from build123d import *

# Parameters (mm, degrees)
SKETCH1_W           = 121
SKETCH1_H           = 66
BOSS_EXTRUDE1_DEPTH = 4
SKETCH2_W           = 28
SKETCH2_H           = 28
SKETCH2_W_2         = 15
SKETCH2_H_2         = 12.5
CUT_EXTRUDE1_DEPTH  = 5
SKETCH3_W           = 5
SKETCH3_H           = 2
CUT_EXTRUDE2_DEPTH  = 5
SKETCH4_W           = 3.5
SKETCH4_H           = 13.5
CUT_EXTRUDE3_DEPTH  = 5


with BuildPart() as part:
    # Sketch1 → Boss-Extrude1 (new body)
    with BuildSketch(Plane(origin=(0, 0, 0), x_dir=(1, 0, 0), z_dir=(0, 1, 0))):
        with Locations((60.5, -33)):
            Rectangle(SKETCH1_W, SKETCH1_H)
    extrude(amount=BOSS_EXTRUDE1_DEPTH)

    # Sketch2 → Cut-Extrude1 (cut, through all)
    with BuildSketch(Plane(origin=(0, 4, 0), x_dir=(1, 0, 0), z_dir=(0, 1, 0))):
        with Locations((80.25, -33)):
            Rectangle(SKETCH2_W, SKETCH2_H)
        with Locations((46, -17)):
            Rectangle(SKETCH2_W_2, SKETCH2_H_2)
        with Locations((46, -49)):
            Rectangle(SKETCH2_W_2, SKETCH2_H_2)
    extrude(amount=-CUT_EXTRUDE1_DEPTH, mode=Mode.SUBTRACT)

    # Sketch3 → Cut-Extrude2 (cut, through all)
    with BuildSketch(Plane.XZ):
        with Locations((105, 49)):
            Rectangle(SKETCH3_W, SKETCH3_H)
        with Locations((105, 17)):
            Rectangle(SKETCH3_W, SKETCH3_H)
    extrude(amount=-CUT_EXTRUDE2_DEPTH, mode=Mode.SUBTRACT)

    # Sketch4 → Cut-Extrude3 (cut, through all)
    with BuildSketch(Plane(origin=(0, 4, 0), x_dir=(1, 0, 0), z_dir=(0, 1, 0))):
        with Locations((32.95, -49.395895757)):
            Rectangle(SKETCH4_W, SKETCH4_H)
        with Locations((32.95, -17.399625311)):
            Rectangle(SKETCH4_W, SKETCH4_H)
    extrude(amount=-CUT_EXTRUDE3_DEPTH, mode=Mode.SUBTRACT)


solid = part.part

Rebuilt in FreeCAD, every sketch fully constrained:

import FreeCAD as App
import Part
import Sketcher
from FreeCAD import Vector
Q = App.Units.Quantity

doc = App.newDocument("Part")
body = doc.addObject("PartDesign::Body", "Body")

# Sketch on XZ plane
sketch1 = doc.addObject("Sketcher::SketchObject", "Sketch")
body.addObject(sketch1)
sketch1.AttachmentSupport = (doc.XZ_Plane, [""])
sketch1.MapMode = "FlatFace"
sketch1.addGeometry(Part.LineSegment(Vector(0, 0, 0), Vector(0, 66, 0)), False)
sketch1.addGeometry(Part.LineSegment(Vector(0, 66, 0), Vector(121, 66, 0)), False)
sketch1.addGeometry(Part.LineSegment(Vector(121, 66, 0), Vector(121, 0, 0)), False)
sketch1.addGeometry(Part.LineSegment(Vector(121, 0, 0), Vector(0, 0, 0)), False)
sketch1.addConstraint(Sketcher.Constraint("Coincident", 0, 2, 1, 1))
sketch1.addConstraint(Sketcher.Constraint("Coincident", 1, 2, 2, 1))
sketch1.addConstraint(Sketcher.Constraint("Coincident", 2, 2, 3, 1))
sketch1.addConstraint(Sketcher.Constraint("Coincident", 3, 2, 0, 1))
sketch1.addConstraint(Sketcher.Constraint("Vertical", 0))
sketch1.addConstraint(Sketcher.Constraint("Horizontal", 1))
sketch1.addConstraint(Sketcher.Constraint("Vertical", 2))
sketch1.addConstraint(Sketcher.Constraint("Horizontal", 3))
sketch1.addConstraint(Sketcher.Constraint("Coincident", 3, 2, -1, 1))
sketch1.addConstraint(Sketcher.Constraint("DistanceX", 1, 1, 1, 2, Q("121 mm")))
sketch1.addConstraint(Sketcher.Constraint("DistanceY", 0, 1, 0, 2, Q("66 mm")))
pad1 = doc.addObject("PartDesign::Pad", "Pad")
body.addObject(pad1)
pad1.Profile = sketch1
pad1.Length = 4
pad1.Reversed = True

# Sketch on XZ plane
sketch2 = doc.addObject("Sketcher::SketchObject", "Sketch001")
body.addObject(sketch2)
sketch2.AttachmentSupport = (doc.XZ_Plane, [""])
sketch2.MapMode = "FlatFace"
sketch2.AttachmentOffset = App.Placement(Vector(0, 0, -4), App.Rotation())
sketch2.addGeometry(Part.LineSegment(Vector(66, 19, 0), Vector(66, 47, 0)), False)
sketch2.addGeometry(Part.LineSegment(Vector(66, 47, 0), Vector(94, 47, 0)), False)
sketch2.addGeometry(Part.LineSegment(Vector(94, 47, 0), Vector(94, 19, 0)), False)
sketch2.addGeometry(Part.LineSegment(Vector(94, 19, 0), Vector(66, 19, 0)), False)
sketch2.addGeometry(Part.LineSegment(Vector(38, 11, 0), Vector(38, 23, 0)), False)
sketch2.addGeometry(Part.LineSegment(Vector(38, 23, 0), Vector(54, 23, 0)), False)
sketch2.addGeometry(Part.LineSegment(Vector(54, 23, 0), Vector(54, 11, 0)), False)
sketch2.addGeometry(Part.LineSegment(Vector(54, 11, 0), Vector(38, 11, 0)), False)
sketch2.addGeometry(Part.LineSegment(Vector(38, 43, 0), Vector(38, 55, 0)), False)
sketch2.addGeometry(Part.LineSegment(Vector(38, 55, 0), Vector(54, 55, 0)), False)
sketch2.addGeometry(Part.LineSegment(Vector(54, 55, 0), Vector(54, 43, 0)), False)
sketch2.addGeometry(Part.LineSegment(Vector(54, 43, 0), Vector(38, 43, 0)), False)
sketch2.addConstraint(Sketcher.Constraint("Coincident", 0, 2, 1, 1))
sketch2.addConstraint(Sketcher.Constraint("Coincident", 1, 2, 2, 1))
sketch2.addConstraint(Sketcher.Constraint("Coincident", 2, 2, 3, 1))
sketch2.addConstraint(Sketcher.Constraint("Coincident", 3, 2, 0, 1))
sketch2.addConstraint(Sketcher.Constraint("Coincident", 4, 2, 5, 1))
sketch2.addConstraint(Sketcher.Constraint("Coincident", 5, 2, 6, 1))
sketch2.addConstraint(Sketcher.Constraint("Coincident", 6, 2, 7, 1))
sketch2.addConstraint(Sketcher.Constraint("Coincident", 7, 2, 4, 1))
sketch2.addConstraint(Sketcher.Constraint("Coincident", 8, 2, 9, 1))
sketch2.addConstraint(Sketcher.Constraint("Coincident", 9, 2, 10, 1))
sketch2.addConstraint(Sketcher.Constraint("Coincident", 10, 2, 11, 1))
sketch2.addConstraint(Sketcher.Constraint("Coincident", 11, 2, 8, 1))
sketch2.addConstraint(Sketcher.Constraint("Vertical", 0))
sketch2.addConstraint(Sketcher.Constraint("Horizontal", 1))
sketch2.addConstraint(Sketcher.Constraint("Vertical", 2))
sketch2.addConstraint(Sketcher.Constraint("Horizontal", 3))
sketch2.addConstraint(Sketcher.Constraint("Vertical", 4))
sketch2.addConstraint(Sketcher.Constraint("Horizontal", 5))
sketch2.addConstraint(Sketcher.Constraint("Vertical", 6))
sketch2.addConstraint(Sketcher.Constraint("Horizontal", 7))
sketch2.addConstraint(Sketcher.Constraint("Vertical", 8))
sketch2.addConstraint(Sketcher.Constraint("Horizontal", 9))
sketch2.addConstraint(Sketcher.Constraint("Vertical", 10))
sketch2.addConstraint(Sketcher.Constraint("Horizontal", 11))
sketch2.addConstraint(Sketcher.Constraint("Vertical", 7, 2, 8, 2))
sketch2.addConstraint(Sketcher.Constraint("Vertical", 6, 2, 9, 2))
sketch2.addConstraint(Sketcher.Constraint("Equal", 3, 0))
sketch2.addConstraint(Sketcher.Constraint("Equal", 6, 8))
sketch2.addConstraint(Sketcher.Constraint("DistanceX", 1, 1, 1, 2, Q("28 mm")))
sketch2.addConstraint(Sketcher.Constraint("DistanceX", 5, 1, 5, 2, Q("15 mm")))
sketch2.addConstraint(Sketcher.Constraint("DistanceY", 4, 1, 4, 2, Q("12.5 mm")))
sketch2.addConstraint(Sketcher.Constraint("DistanceY", -1, 1, 0, 2, Q("47 mm")))
sketch2.addConstraint(Sketcher.Constraint("DistanceY", 4, 2, 8, 2, Q("32 mm")))
sketch2.addConstraint(Sketcher.Constraint("DistanceX", -1, 1, 4, 2, Q("38.5 mm")))
sketch2.addConstraint(Sketcher.Constraint("DistanceX", -1, 1, 0, 2, Q("66.25 mm")))
sketch2.addConstraint(Sketcher.Constraint("DistanceY", -1, 1, 4, 2, Q("23.25 mm")))
pocket1 = doc.addObject("PartDesign::Pocket", "Pocket")
body.addObject(pocket1)
pocket1.Profile = sketch2
pocket1.Type = "ThroughAll"
pocket1.Reversed = True

# Sketch on XZ plane
sketch3 = doc.addObject("Sketcher::SketchObject", "Sketch002")
body.addObject(sketch3)
sketch3.AttachmentSupport = (doc.XZ_Plane, [""])
sketch3.MapMode = "FlatFace"
sketch3.addGeometry(Part.LineSegment(Vector(102.5, 50, 0), Vector(102.5, 48, 0)), False)
sketch3.addGeometry(Part.LineSegment(Vector(102.5, 48, 0), Vector(107.5, 48, 0)), False)
sketch3.addGeometry(Part.LineSegment(Vector(107.5, 48, 0), Vector(107.5, 50, 0)), False)
sketch3.addGeometry(Part.LineSegment(Vector(107.5, 50, 0), Vector(102.5, 50, 0)), False)
sketch3.addGeometry(Part.LineSegment(Vector(102.5, 18, 0), Vector(102.5, 16, 0)), False)
sketch3.addGeometry(Part.LineSegment(Vector(102.5, 16, 0), Vector(107.5, 16, 0)), False)
sketch3.addGeometry(Part.LineSegment(Vector(107.5, 16, 0), Vector(107.5, 18, 0)), False)
sketch3.addGeometry(Part.LineSegment(Vector(107.5, 18, 0), Vector(102.5, 18, 0)), False)
sketch3.addConstraint(Sketcher.Constraint("Coincident", 0, 2, 1, 1))
sketch3.addConstraint(Sketcher.Constraint("Coincident", 1, 2, 2, 1))
sketch3.addConstraint(Sketcher.Constraint("Coincident", 2, 2, 3, 1))
sketch3.addConstraint(Sketcher.Constraint("Coincident", 3, 2, 0, 1))
sketch3.addConstraint(Sketcher.Constraint("Coincident", 4, 2, 5, 1))
sketch3.addConstraint(Sketcher.Constraint("Coincident", 5, 2, 6, 1))
sketch3.addConstraint(Sketcher.Constraint("Coincident", 6, 2, 7, 1))
sketch3.addConstraint(Sketcher.Constraint("Coincident", 7, 2, 4, 1))
sketch3.addConstraint(Sketcher.Constraint("Vertical", 0))
sketch3.addConstraint(Sketcher.Constraint("Horizontal", 1))
sketch3.addConstraint(Sketcher.Constraint("Vertical", 2))
sketch3.addConstraint(Sketcher.Constraint("Horizontal", 3))
sketch3.addConstraint(Sketcher.Constraint("Vertical", 4))
sketch3.addConstraint(Sketcher.Constraint("Horizontal", 5))
sketch3.addConstraint(Sketcher.Constraint("Vertical", 6))
sketch3.addConstraint(Sketcher.Constraint("Horizontal", 7))
sketch3.addConstraint(Sketcher.Constraint("Vertical", 3, 2, 4, 2))
sketch3.addConstraint(Sketcher.Constraint("Vertical", 2, 2, 5, 2))
sketch3.addConstraint(Sketcher.Constraint("Equal", 2, 4))
sketch3.addConstraint(Sketcher.Constraint("DistanceX", 1, 1, 1, 2, Q("5 mm")))
sketch3.addConstraint(Sketcher.Constraint("DistanceY", 0, 2, 0, 1, Q("2 mm")))
sketch3.addConstraint(Sketcher.Constraint("DistanceY", -1, 1, 0, 2, Q("48 mm")))
sketch3.addConstraint(Sketcher.Constraint("DistanceY", -1, 1, 4, 2, Q("16 mm")))
sketch3.addConstraint(Sketcher.Constraint("DistanceX", -1, 1, 0, 2, Q("102.5 mm")))
pocket2 = doc.addObject("PartDesign::Pocket", "Pocket001")
body.addObject(pocket2)
pocket2.Profile = sketch3
pocket2.Type = "ThroughAll"

# Sketch on XZ plane
sketch4 = doc.addObject("Sketcher::SketchObject", "Sketch003")
body.addObject(sketch4)
sketch4.AttachmentSupport = (doc.XZ_Plane, [""])
sketch4.MapMode = "FlatFace"
sketch4.AttachmentOffset = App.Placement(Vector(0, 0, -4), App.Rotation())
sketch4.addGeometry(Part.LineSegment(Vector(31.2, 42.6, 0), Vector(31.2, 56.1, 0)), False)
sketch4.addGeometry(Part.LineSegment(Vector(31.2, 56.1, 0), Vector(34.7, 56.1, 0)), False)
sketch4.addGeometry(Part.LineSegment(Vector(34.7, 56.1, 0), Vector(34.7, 42.6, 0)), False)
sketch4.addGeometry(Part.LineSegment(Vector(34.7, 42.6, 0), Vector(31.2, 42.6, 0)), False)
sketch4.addGeometry(Part.LineSegment(Vector(31.2, 10.6, 0), Vector(31.2, 24.1, 0)), False)
sketch4.addGeometry(Part.LineSegment(Vector(31.2, 24.1, 0), Vector(34.7, 24.1, 0)), False)
sketch4.addGeometry(Part.LineSegment(Vector(34.7, 24.1, 0), Vector(34.7, 10.6, 0)), False)
sketch4.addGeometry(Part.LineSegment(Vector(34.7, 10.6, 0), Vector(31.2, 10.6, 0)), False)
sketch4.addConstraint(Sketcher.Constraint("Coincident", 0, 2, 1, 1))
sketch4.addConstraint(Sketcher.Constraint("Coincident", 1, 2, 2, 1))
sketch4.addConstraint(Sketcher.Constraint("Coincident", 2, 2, 3, 1))
sketch4.addConstraint(Sketcher.Constraint("Coincident", 3, 2, 0, 1))
sketch4.addConstraint(Sketcher.Constraint("Coincident", 4, 2, 5, 1))
sketch4.addConstraint(Sketcher.Constraint("Coincident", 5, 2, 6, 1))
sketch4.addConstraint(Sketcher.Constraint("Coincident", 6, 2, 7, 1))
sketch4.addConstraint(Sketcher.Constraint("Coincident", 7, 2, 4, 1))
sketch4.addConstraint(Sketcher.Constraint("Vertical", 0))
sketch4.addConstraint(Sketcher.Constraint("Horizontal", 1))
sketch4.addConstraint(Sketcher.Constraint("Vertical", 2))
sketch4.addConstraint(Sketcher.Constraint("Horizontal", 3))
sketch4.addConstraint(Sketcher.Constraint("Vertical", 4))
sketch4.addConstraint(Sketcher.Constraint("Horizontal", 5))
sketch4.addConstraint(Sketcher.Constraint("Vertical", 6))
sketch4.addConstraint(Sketcher.Constraint("Horizontal", 7))
sketch4.addConstraint(Sketcher.Constraint("Vertical", 3, 2, 4, 2))
sketch4.addConstraint(Sketcher.Constraint("Vertical", 2, 2, 5, 2))
sketch4.addConstraint(Sketcher.Constraint("Equal", 2, 4))
sketch4.addConstraint(Sketcher.Constraint("DistanceX", 1, 1, 1, 2, Q("3.5 mm")))
sketch4.addConstraint(Sketcher.Constraint("DistanceY", 0, 1, 0, 2, Q("13.5 mm")))
sketch4.addConstraint(Sketcher.Constraint("DistanceX", -1, 1, 0, 2, Q("31.2 mm")))
sketch4.addConstraint(Sketcher.Constraint("DistanceY", 4, 2, 3, 2, Q("18.49627 mm")))
sketch4.addConstraint(Sketcher.Constraint("DistanceY", -1, 1, 0, 2, Q("56.145896 mm")))
pocket3 = doc.addObject("PartDesign::Pocket", "Pocket002")
body.addObject(pocket3)
pocket3.Profile = sketch4
pocket3.Type = "ThroughAll"
pocket3.Reversed = True

doc.recompute()
